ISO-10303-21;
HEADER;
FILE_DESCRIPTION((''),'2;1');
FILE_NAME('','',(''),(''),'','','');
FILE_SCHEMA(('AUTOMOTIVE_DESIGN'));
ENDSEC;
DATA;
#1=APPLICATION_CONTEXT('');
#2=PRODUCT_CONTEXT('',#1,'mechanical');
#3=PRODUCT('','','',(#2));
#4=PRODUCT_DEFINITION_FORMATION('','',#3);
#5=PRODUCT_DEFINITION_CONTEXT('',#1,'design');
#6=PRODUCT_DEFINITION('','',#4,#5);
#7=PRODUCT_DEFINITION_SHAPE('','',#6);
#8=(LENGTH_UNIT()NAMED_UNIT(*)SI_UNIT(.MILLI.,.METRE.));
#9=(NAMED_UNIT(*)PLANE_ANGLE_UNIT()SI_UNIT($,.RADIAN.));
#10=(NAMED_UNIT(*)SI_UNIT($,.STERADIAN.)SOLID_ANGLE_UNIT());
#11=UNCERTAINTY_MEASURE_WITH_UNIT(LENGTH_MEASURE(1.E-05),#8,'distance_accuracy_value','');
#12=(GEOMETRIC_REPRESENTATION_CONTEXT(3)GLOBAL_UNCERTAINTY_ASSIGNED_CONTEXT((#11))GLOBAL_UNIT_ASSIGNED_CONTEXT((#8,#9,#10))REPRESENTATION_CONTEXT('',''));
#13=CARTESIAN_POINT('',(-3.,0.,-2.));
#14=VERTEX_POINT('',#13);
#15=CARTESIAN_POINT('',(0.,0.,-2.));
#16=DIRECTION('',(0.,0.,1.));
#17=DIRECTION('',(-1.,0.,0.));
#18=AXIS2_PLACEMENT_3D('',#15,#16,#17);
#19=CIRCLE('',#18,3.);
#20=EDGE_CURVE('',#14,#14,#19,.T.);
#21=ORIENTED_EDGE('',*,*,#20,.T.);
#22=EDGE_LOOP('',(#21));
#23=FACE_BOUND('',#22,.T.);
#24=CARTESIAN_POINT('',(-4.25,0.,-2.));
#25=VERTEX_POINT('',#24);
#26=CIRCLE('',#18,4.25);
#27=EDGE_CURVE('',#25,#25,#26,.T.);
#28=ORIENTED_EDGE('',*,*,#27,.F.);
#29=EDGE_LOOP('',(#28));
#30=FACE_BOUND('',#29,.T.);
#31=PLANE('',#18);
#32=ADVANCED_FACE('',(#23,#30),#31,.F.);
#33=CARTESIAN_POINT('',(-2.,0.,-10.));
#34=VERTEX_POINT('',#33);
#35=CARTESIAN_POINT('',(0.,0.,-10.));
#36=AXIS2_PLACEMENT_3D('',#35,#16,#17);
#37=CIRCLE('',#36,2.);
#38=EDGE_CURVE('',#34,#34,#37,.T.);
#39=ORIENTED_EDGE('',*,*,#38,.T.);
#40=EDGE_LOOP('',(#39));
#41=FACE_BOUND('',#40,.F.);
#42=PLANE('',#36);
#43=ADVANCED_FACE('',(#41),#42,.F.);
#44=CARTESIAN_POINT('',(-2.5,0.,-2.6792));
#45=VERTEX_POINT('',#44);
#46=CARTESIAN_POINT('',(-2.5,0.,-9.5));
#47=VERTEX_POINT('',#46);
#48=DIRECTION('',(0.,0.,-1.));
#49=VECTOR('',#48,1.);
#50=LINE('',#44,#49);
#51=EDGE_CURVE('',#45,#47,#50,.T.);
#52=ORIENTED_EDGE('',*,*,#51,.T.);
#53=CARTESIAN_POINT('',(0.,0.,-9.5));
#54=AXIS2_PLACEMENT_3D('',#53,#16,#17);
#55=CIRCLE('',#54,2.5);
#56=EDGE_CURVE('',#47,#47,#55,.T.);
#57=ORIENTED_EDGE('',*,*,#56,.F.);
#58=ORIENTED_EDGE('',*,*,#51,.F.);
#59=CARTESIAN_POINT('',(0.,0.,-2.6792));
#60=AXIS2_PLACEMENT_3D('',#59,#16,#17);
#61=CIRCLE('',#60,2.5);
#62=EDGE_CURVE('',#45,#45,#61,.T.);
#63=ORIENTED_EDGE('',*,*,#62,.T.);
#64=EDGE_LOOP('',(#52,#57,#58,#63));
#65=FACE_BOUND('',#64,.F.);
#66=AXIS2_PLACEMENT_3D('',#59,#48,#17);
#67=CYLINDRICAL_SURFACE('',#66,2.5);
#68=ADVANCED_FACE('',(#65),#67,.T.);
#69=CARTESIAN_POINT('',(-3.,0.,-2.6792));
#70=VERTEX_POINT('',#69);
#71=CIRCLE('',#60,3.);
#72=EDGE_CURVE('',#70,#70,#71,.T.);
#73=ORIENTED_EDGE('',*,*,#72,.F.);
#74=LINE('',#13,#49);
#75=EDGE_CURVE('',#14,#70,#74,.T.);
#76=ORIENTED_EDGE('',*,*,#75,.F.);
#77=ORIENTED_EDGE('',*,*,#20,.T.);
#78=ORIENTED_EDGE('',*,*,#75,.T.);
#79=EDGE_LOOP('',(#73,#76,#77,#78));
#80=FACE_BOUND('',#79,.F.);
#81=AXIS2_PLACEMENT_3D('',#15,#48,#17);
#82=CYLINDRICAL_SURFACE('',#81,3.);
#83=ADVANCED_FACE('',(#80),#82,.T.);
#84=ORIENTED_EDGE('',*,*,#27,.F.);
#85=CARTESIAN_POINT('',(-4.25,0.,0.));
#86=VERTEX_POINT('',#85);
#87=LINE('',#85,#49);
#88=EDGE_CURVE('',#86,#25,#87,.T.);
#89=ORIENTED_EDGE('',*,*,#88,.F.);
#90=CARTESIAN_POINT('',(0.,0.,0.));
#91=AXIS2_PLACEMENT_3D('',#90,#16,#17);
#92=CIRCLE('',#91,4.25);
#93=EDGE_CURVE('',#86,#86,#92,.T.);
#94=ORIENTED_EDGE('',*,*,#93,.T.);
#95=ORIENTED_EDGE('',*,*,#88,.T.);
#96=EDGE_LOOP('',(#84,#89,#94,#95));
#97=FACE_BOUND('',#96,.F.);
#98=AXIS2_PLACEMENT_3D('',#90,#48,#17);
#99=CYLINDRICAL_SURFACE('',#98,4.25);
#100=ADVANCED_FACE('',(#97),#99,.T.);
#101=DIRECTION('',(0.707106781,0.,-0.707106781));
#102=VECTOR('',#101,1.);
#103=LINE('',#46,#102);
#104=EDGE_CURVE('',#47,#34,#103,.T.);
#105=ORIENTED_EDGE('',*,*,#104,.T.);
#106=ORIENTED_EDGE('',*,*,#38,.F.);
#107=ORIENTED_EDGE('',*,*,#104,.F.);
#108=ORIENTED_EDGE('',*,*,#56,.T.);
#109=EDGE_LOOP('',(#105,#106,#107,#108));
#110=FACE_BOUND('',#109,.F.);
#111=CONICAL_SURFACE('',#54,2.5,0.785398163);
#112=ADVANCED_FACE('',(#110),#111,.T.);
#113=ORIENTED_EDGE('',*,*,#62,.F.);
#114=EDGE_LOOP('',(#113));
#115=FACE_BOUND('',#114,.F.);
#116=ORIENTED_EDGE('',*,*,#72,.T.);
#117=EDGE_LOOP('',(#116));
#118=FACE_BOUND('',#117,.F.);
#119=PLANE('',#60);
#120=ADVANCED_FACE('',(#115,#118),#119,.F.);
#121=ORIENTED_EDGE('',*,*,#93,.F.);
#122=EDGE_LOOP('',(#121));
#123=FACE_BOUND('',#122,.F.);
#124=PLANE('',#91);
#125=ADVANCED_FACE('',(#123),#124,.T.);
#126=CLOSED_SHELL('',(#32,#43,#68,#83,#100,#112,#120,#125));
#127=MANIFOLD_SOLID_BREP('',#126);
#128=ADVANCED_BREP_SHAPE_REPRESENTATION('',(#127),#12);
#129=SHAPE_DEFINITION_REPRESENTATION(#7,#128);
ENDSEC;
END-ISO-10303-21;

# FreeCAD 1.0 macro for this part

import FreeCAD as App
import Part
import Sketcher
from FreeCAD import Vector


def edges_at(feature, points):
    """Names of the edges that pass closest to the given points."""
    edges = feature.Shape.Edges
    near = lambda p: min(range(len(edges)), key=lambda i: edges[i].distToShape(Part.Vertex(*p))[0])
    return sorted({f"Edge{near(p) + 1}" for p in points})


def add_polygon(sketch, points):
    """Adds a closed chain of lines whose ends are joined by coincident constraints."""
    first, n = sketch.GeometryCount, len(points)
    for a, b in zip(points, points[1:] + points[:1]):
        sketch.addGeometry(Part.LineSegment(App.Vector(*a, 0), App.Vector(*b, 0)), False)
    for i in range(n):
        sketch.addConstraint(Sketcher.Constraint("Coincident", first + i, 2, first + (i + 1) % n, 1))

doc = App.newDocument("Part")
params = doc.addObject("Spreadsheet::Sheet", "Params")
for row, (alias, value) in enumerate([
    ("sketch1_height", "2 mm"),
    ("sketch1_width", "0.5 mm"),
    ("sketch1_width2", "4.25 mm"),
    ("sketch1_width3", "2.5 mm"),
    ("revolution_angle", "360 deg"),
    ("chamfer_size", "0.5 mm"),
], start=1):
    params.set(f"A{row}", alias)
    params.set(f"B{row}", "=" + value)
    params.setAlias(f"B{row}", alias)

body = doc.addObject("PartDesign::Body", "Body")

sketch1 = body.newObject("Sketcher::SketchObject", "Sketch")
sketch1.AttachmentSupport = (doc.getObject("XZ_Plane"), [""])
sketch1.MapMode = "FlatFace"
add_polygon(sketch1, [(-4.2, 0), (0, 0), (0, -10), (-2.5, -10), (-2.5, -2.7), (-3, -2.7), (-3, -2), (-4.2, -2)])
sketch1.addConstraint([
    Sketcher.Constraint("Horizontal", 0),
    Sketcher.Constraint("Vertical", 1),
    Sketcher.Constraint("Horizontal", 2),
    Sketcher.Constraint("Vertical", 3),
    Sketcher.Constraint("Horizontal", 4),
    Sketcher.Constraint("Vertical", 5),
    Sketcher.Constraint("Horizontal", 6),
    Sketcher.Constraint("Vertical", 7),
    Sketcher.Constraint("Coincident", 0, 2, -1, 1),
    Sketcher.Constraint("DistanceY", 7, 1, 7, 2, 2.0),
    Sketcher.Constraint("DistanceX", 4, 2, 4, 1, 0.5),
    Sketcher.Constraint("DistanceY", 2, 2, 5, 2, 8.0),
    Sketcher.Constraint("DistanceX", 0, 1, 0, 2, 4.25),
    Sketcher.Constraint("DistanceX", 2, 2, 2, 1, 2.5),
    Sketcher.Constraint("DistanceY", 3, 1, 3, 2, 7.3208),
])
sketch1.setExpression("Constraints[17]", "Params.sketch1_height")
sketch1.setExpression("Constraints[18]", "Params.sketch1_width")
sketch1.setExpression("Constraints[20]", "Params.sketch1_width2")
sketch1.setExpression("Constraints[21]", "Params.sketch1_width3")
revolution = body.newObject("PartDesign::Revolution", "Revolution")
revolution.Profile = sketch1
revolution.ReferenceAxis = (sketch1, ["V_Axis"])
revolution.setExpression("Angle", "Params.revolution_angle")
doc.recompute()

chamfer = body.newObject("PartDesign::Chamfer", "Chamfer")
chamfer.Base = (revolution, edges_at(revolution, [(2.5, 0, -10)]))
chamfer.setExpression("Size", "Params.chamfer_size")

doc.recompute()
